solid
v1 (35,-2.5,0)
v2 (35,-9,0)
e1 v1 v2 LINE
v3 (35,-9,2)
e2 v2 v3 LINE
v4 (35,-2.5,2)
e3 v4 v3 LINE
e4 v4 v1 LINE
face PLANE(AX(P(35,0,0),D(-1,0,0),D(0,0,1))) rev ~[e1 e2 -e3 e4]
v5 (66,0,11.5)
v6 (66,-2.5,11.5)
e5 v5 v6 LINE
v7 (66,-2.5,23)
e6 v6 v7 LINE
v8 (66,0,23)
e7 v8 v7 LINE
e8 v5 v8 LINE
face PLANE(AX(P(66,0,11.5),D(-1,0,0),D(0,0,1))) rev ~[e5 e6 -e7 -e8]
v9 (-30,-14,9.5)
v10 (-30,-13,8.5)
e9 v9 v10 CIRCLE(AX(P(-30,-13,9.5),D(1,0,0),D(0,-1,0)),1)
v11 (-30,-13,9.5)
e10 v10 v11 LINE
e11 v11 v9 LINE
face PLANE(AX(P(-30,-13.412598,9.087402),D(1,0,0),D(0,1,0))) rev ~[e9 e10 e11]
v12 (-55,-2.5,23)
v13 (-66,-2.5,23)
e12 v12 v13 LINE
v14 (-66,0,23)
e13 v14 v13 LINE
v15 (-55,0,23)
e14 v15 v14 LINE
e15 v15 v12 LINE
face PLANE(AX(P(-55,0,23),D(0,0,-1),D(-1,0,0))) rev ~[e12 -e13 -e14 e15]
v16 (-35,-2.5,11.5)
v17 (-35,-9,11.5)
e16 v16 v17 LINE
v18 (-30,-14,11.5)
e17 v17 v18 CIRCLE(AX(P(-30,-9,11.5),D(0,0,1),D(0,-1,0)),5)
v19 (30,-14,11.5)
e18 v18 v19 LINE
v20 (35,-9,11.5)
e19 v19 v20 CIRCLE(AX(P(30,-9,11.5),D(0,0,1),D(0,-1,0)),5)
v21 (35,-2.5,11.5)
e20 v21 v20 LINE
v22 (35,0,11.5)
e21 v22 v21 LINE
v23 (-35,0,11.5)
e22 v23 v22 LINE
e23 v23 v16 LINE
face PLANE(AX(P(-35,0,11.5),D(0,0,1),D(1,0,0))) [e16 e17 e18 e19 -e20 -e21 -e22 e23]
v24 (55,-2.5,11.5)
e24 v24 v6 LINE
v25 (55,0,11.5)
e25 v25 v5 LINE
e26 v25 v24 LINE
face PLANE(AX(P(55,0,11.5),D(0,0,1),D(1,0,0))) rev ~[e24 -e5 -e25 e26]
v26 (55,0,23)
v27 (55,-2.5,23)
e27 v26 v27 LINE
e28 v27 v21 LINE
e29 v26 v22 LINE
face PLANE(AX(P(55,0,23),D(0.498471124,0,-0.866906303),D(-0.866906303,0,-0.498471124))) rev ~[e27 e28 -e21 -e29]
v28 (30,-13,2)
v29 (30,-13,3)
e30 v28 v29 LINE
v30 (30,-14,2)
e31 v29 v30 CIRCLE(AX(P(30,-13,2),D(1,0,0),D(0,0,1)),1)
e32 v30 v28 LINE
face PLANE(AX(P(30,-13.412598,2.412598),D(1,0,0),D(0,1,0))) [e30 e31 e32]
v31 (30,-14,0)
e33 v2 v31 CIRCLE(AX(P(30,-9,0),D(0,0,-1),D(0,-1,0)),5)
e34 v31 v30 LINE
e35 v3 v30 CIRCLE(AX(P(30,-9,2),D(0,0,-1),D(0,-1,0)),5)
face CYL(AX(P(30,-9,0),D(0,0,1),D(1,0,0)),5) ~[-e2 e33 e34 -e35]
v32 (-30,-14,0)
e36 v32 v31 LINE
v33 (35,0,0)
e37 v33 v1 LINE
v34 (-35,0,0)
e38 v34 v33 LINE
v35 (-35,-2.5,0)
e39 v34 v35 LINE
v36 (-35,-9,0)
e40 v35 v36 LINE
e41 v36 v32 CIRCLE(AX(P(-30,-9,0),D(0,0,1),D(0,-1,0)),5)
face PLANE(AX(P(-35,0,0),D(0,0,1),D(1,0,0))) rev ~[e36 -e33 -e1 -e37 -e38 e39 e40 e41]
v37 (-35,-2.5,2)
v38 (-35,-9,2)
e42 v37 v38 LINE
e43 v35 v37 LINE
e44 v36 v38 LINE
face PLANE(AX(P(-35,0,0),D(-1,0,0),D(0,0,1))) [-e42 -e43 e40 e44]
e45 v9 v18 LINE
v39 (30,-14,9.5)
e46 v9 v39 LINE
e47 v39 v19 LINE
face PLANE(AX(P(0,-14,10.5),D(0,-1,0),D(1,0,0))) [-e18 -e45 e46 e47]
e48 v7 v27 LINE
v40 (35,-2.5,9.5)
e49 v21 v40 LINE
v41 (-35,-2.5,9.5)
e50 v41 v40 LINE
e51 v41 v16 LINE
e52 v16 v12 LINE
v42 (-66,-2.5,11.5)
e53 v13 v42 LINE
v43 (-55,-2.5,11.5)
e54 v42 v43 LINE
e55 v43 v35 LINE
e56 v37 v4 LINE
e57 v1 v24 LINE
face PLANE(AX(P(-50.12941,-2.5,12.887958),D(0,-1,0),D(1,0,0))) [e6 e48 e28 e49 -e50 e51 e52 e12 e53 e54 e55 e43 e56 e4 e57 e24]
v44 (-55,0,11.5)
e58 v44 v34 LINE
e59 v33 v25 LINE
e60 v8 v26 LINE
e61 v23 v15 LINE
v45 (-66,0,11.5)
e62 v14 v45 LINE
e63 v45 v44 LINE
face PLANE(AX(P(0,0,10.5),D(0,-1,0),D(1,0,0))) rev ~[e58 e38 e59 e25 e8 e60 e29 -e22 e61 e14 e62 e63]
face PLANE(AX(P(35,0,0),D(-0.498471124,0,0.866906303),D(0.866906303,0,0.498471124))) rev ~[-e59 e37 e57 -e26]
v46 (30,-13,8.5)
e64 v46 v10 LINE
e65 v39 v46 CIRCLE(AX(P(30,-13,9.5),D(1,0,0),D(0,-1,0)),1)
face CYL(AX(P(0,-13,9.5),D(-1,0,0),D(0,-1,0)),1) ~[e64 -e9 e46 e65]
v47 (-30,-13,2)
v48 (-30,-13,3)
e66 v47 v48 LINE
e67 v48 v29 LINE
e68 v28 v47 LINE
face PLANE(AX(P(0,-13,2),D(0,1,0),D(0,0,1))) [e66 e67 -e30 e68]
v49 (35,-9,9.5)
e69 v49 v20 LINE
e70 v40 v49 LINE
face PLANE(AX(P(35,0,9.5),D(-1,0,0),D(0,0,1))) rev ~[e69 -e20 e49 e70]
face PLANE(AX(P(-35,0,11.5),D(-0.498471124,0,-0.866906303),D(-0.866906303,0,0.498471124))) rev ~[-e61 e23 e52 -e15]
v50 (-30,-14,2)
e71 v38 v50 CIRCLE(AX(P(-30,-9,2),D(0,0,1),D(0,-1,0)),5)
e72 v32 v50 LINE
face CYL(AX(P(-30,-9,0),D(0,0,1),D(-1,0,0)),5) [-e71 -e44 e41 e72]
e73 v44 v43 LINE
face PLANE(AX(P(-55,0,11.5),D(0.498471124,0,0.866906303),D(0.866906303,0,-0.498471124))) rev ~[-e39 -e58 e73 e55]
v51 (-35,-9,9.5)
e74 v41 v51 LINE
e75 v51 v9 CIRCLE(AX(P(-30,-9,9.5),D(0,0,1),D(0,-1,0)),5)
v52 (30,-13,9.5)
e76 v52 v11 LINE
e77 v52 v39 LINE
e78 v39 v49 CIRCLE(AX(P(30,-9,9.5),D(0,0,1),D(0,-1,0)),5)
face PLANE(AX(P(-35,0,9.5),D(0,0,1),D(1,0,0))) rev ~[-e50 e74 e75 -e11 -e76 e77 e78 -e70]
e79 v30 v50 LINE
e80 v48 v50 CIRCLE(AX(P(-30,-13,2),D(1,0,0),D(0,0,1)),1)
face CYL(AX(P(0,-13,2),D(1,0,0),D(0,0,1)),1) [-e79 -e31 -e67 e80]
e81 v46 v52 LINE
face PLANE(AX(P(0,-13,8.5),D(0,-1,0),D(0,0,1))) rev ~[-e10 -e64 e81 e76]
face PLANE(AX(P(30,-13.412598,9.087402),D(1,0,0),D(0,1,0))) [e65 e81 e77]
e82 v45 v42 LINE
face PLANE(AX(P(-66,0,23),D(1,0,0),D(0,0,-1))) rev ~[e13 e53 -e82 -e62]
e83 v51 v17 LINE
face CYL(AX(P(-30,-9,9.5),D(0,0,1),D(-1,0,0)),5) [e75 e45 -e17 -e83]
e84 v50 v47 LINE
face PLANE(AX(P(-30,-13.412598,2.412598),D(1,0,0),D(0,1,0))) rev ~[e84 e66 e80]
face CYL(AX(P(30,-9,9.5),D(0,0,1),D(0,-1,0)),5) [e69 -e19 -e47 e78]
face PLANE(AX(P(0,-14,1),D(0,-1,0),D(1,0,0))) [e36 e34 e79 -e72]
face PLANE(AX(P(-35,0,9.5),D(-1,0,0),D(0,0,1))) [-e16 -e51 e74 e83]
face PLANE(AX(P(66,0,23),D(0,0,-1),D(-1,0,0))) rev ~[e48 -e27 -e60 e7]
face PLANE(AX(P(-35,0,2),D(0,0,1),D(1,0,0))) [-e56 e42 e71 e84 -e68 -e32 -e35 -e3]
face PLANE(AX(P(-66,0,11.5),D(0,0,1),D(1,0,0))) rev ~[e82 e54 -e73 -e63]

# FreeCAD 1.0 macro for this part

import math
import FreeCAD as App
import Part
import Sketcher

V = App.Vector
Q = App.Units.Quantity


def edges_at(feature, points):
    """Names of the edges that pass closest to the given points."""
    edges = feature.Shape.Edges
    near = lambda p: min(range(len(edges)), key=lambda i: edges[i].distToShape(Part.Vertex(*p))[0])
    return sorted({f"Edge{near(p) + 1}" for p in points})


def add_polygon(sketch, points):
    """Adds a closed chain of lines whose ends are joined by coincident constraints."""
    first, n = sketch.GeometryCount, len(points)
    for a, b in zip(points, points[1:] + points[:1]):
        sketch.addGeometry(Part.LineSegment(App.Vector(*a, 0), App.Vector(*b, 0)), False)
    for i in range(n):
        sketch.addConstraint(Sketcher.Constraint("Coincident", first + i, 2, first + (i + 1) % n, 1))

doc = App.newDocument("Part")
body = doc.addObject("PartDesign::Body", "Body")

sketch1 = body.newObject("Sketcher::SketchObject", "Sketch")
sketch1.AttachmentSupport = (doc.getObject("XZ_Plane"), [""])
sketch1.MapMode = "FlatFace"
add_polygon(sketch1, [(-55, 23), (-66, 23), (-66, 11.5), (-55, 11.5), (-35, 0), (-35, 2), (35, 2), (35, 0), (55, 11.5), (66, 11.5), (66, 23), (55, 23), (35, 11.5), (35, 9.5), (-35, 9.5), (-35, 11.5)])
sketch1.addConstraint(Sketcher.Constraint("Horizontal", 0))
sketch1.addConstraint(Sketcher.Constraint("Vertical", 1))
sketch1.addConstraint(Sketcher.Constraint("Horizontal", 2))
sketch1.addConstraint(Sketcher.Constraint("Vertical", 4))
sketch1.addConstraint(Sketcher.Constraint("Horizontal", 5))
sketch1.addConstraint(Sketcher.Constraint("Vertical", 6))
sketch1.addConstraint(Sketcher.Constraint("Horizontal", 8))
sketch1.addConstraint(Sketcher.Constraint("Vertical", 9))
sketch1.addConstraint(Sketcher.Constraint("Horizontal", 10))
sketch1.addConstraint(Sketcher.Constraint("Vertical", 12))
sketch1.addConstraint(Sketcher.Constraint("Horizontal", 13))
sketch1.addConstraint(Sketcher.Constraint("Vertical", 14))
sketch1.addConstraint(Sketcher.Constraint("Symmetric", 3, 2, 6, 2, -1, 1))
sketch1.addConstraint(Sketcher.Constraint("Symmetric", 2, 2, 7, 2, -2))
sketch1.addConstraint(Sketcher.Constraint("Symmetric", 0, 2, 9, 2, -2))
sketch1.addConstraint(Sketcher.Constraint("Symmetric", 11, 2, 14, 2, -2))
sketch1.addConstraint(Sketcher.Constraint("PointOnObject", 3, 2, -1))
sketch1.addConstraint(Sketcher.Constraint("Parallel", 7, 11))
sketch1.addConstraint(Sketcher.Constraint("Parallel", 3, 15))
sketch1.addConstraint(Sketcher.Constraint("Horizontal", 8, 2, 11, 2))
sketch1.addConstraint(Sketcher.Constraint("Vertical", 7, 2, 10, 2))
sketch1.addConstraint(Sketcher.Constraint("Vertical", 6, 2, 11, 2))
sketch1.addConstraint(Sketcher.Constraint("Equal", 6, 12))
sketch1.addConstraint(Sketcher.Constraint("DistanceX", 0, 2, 0, 1, Q("11 mm")))
sketch1.addConstraint(Sketcher.Constraint("DistanceX", 5, 1, 5, 2, Q("70 mm")))
sketch1.addConstraint(Sketcher.Constraint("DistanceY", 4, 1, 4, 2, Q("2 mm")))
sketch1.addConstraint(Sketcher.Constraint("DistanceY", 1, 2, 1, 1, Q("11.5 mm")))
sketch1.addConstraint(Sketcher.Constraint("DistanceX", 0, 2, -1, 1, Q("66 mm")))
pad1 = body.newObject("PartDesign::Pad", "Pad")
pad1.Profile = sketch1
pad1.Length = 2.5

sketch2 = body.newObject("Sketcher::SketchObject", "Sketch001")
sketch2.AttachmentSupport = (doc.getObject("XZ_Plane"), [""])
sketch2.MapMode = "FlatFace"
add_polygon(sketch2, [(-35, 11.5), (-35, 9.5), (35, 9.5), (35, 11.5)])
add_polygon(sketch2, [(-35, 2), (-35, 0), (35, 0), (35, 2)])
sketch2.addConstraint(Sketcher.Constraint("Vertical", 0))
sketch2.addConstraint(Sketcher.Constraint("Horizontal", 1))
sketch2.addConstraint(Sketcher.Constraint("Vertical", 2))
sketch2.addConstraint(Sketcher.Constraint("Horizontal", 3))
sketch2.addConstraint(Sketcher.Constraint("Vertical", 4))
sketch2.addConstraint(Sketcher.Constraint("Horizontal", 5))
sketch2.addConstraint(Sketcher.Constraint("Vertical", 6))
sketch2.addConstraint(Sketcher.Constraint("Horizontal", 7))
sketch2.addConstraint(Sketcher.Constraint("Symmetric", 4, 2, 5, 2, -1, 1))
sketch2.addConstraint(Sketcher.Constraint("Vertical", 3, 2, 4, 2))
sketch2.addConstraint(Sketcher.Constraint("Vertical", 2, 2, 5, 2))
sketch2.addConstraint(Sketcher.Constraint("Equal", 2, 4))
sketch2.addConstraint(Sketcher.Constraint("DistanceX", 1, 1, 1, 2, Q("70 mm")))
sketch2.addConstraint(Sketcher.Constraint("DistanceY", 0, 2, 0, 1, Q("2 mm")))
sketch2.addConstraint(Sketcher.Constraint("DistanceY", -1, 1, 0, 2, Q("9.5 mm")))
pad2 = body.newObject("PartDesign::Pad", "Pad001")
pad2.Profile = sketch2
pad2.Length = 14

sketch3 = body.newObject("Sketcher::SketchObject", "Sketch002")
sketch3.AttachmentSupport = (doc.getObject("YZ_Plane"), [""])
sketch3.MapMode = "FlatFace"
sketch3.addGeometry(Part.LineSegment(V(-13, 9.5, 0), V(-14, 9.5, 0)), False)
sketch3.addGeometry(Part.ArcOfCircle(Part.Circle(V(-13, 9.5, 0), V(0, 0, 1), 1), math.radians(180), math.radians(270)), False)
sketch3.addGeometry(Part.LineSegment(V(-13, 8.5, 0), V(-13, 9.5, 0)), False)
sketch3.addGeometry(Part.LineSegment(V(-13, 2, 0), V(-13, 3, 0)), False)
sketch3.addGeometry(Part.ArcOfCircle(Part.Circle(V(-13, 2, 0), V(0, 0, 1), 1), math.radians(90), math.radians(180)), False)
sketch3.addGeometry(Part.LineSegment(V(-14, 2, 0), V(-13, 2, 0)), False)
sketch3.addConstraint(Sketcher.Constraint("Coincident", 0, 2, 1, 1))
sketch3.addConstraint(Sketcher.Constraint("Coincident", 1, 2, 2, 1))
sketch3.addConstraint(Sketcher.Constraint("Coincident", 2, 2, 0, 1))
sketch3.addConstraint(Sketcher.Constraint("Coincident", 3, 2, 4, 1))
sketch3.addConstraint(Sketcher.Constraint("Coincident", 4, 2, 5, 1))
sketch3.addConstraint(Sketcher.Constraint("Coincident", 5, 2, 3, 1))
sketch3.addConstraint(Sketcher.Constraint("Horizontal", 0))
sketch3.addConstraint(Sketcher.Constraint("Vertical", 2))
sketch3.addConstraint(Sketcher.Constraint("Vertical", 3))
sketch3.addConstraint(Sketcher.Constraint("Horizontal", 5))
sketch3.addConstraint(Sketcher.Constraint("Coincident", 2, 2, 1, 3))
sketch3.addConstraint(Sketcher.Constraint("Coincident", 5, 2, 4, 3))
sketch3.addConstraint(Sketcher.Constraint("Equal", 1, 4))
sketch3.addConstraint(Sketcher.Constraint("Vertical", 1, 3, 4, 3))
sketch3.addConstraint(Sketcher.Constraint("Radius", 1, Q("1 mm")))
sketch3.addConstraint(Sketcher.Constraint("DistanceX", 1, 3, -1, 1, Q("13 mm")))
sketch3.addConstraint(Sketcher.Constraint("DistanceY", -1, 1, 4, 3, Q("2 mm")))
sketch3.addConstraint(Sketcher.Constraint("DistanceY", -1, 1, 1, 3, Q("9.5 mm")))
pad3 = body.newObject("PartDesign::Pad", "Pad002")
pad3.Profile = sketch3
pad3.Length = 60
pad3.Midplane = True
doc.recompute()

fillet = body.newObject("PartDesign::Fillet", "Fillet")
fillet.Base = (pad3, edges_at(pad3, [
    (35, -14, 10.5),
    (35, -14, 1),
    (-35, -14, 1),
    (-35, -14, 10.5),
]))
fillet.Radius = 5

doc.recompute()
